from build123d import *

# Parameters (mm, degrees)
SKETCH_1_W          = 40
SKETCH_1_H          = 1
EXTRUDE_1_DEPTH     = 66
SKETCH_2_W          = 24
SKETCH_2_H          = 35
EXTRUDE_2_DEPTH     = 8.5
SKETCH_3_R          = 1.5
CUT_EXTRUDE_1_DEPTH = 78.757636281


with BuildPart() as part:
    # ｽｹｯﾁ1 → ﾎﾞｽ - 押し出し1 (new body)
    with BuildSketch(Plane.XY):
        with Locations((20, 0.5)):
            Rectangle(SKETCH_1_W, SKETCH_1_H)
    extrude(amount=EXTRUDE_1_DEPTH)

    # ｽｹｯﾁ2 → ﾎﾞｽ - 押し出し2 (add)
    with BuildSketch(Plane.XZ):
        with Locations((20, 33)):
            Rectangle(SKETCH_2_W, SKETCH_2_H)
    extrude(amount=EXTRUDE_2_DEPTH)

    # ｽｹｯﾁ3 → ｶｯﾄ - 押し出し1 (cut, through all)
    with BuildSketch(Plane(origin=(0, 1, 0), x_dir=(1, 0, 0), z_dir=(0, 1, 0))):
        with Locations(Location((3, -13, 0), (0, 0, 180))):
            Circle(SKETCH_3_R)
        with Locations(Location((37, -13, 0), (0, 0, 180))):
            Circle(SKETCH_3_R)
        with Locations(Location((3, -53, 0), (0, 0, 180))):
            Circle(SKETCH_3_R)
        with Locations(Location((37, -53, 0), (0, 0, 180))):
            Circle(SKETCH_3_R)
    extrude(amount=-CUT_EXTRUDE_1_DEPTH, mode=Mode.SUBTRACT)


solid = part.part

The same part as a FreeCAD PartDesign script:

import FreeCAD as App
import Part
import Sketcher

doc = App.newDocument("Part")
body = doc.addObject("PartDesign::Body", "Body")

sketch1 = body.newObject("Sketcher::SketchObject", "Sketch")
sketch1.AttachmentSupport = (doc.getObject("XY_Plane"), [""])
sketch1.MapMode = "FlatFace"
sketch1.addGeometry(Part.LineSegment(App.Vector(0, 1, 0), App.Vector(0, 0, 0)), False)
sketch1.addGeometry(Part.LineSegment(App.Vector(0, 0, 0), App.Vector(40, 0, 0)), False)
sketch1.addGeometry(Part.LineSegment(App.Vector(40, 0, 0), App.Vector(40, 1, 0)), False)
sketch1.addGeometry(Part.LineSegment(App.Vector(40, 1, 0), App.Vector(0, 1, 0)), False)
sketch1.addConstraint(Sketcher.Constraint("Coincident", 0, 2, 1, 1))
sketch1.addConstraint(Sketcher.Constraint("Coincident", 1, 2, 2, 1))
sketch1.addConstraint(Sketcher.Constraint("Coincident", 2, 2, 3, 1))
sketch1.addConstraint(Sketcher.Constraint("Coincident", 3, 2, 0, 1))
sketch1.addConstraint(Sketcher.Constraint("Vertical", 0))
sketch1.addConstraint(Sketcher.Constraint("Horizontal", 1))
sketch1.addConstraint(Sketcher.Constraint("Vertical", 2))
sketch1.addConstraint(Sketcher.Constraint("Horizontal", 3))
sketch1.addConstraint(Sketcher.Constraint("Coincident", 0, 2, -1, 1))
sketch1.addConstraint(Sketcher.Constraint("DistanceX", 1, 1, 1, 2, 40.0))
sketch1.addConstraint(Sketcher.Constraint("DistanceY", 0, 2, 0, 1, 1.0))
pad1 = body.newObject("PartDesign::Pad", "Pad")
pad1.Profile = sketch1
pad1.Length = 66

sketch2 = body.newObject("Sketcher::SketchObject", "Sketch001")
sketch2.AttachmentSupport = (doc.getObject("XZ_Plane"), [""])
sketch2.MapMode = "FlatFace"
sketch2.addGeometry(Part.LineSegment(App.Vector(8, 50, 0), App.Vector(8, 16, 0)), False)
sketch2.addGeometry(Part.LineSegment(App.Vector(8, 16, 0), App.Vector(32, 16, 0)), False)
sketch2.addGeometry(Part.LineSegment(App.Vector(32, 16, 0), App.Vector(32, 50, 0)), False)
sketch2.addGeometry(Part.LineSegment(App.Vector(32, 50, 0), App.Vector(8, 50, 0)), False)
sketch2.addConstraint(Sketcher.Constraint("Coincident", 0, 2, 1, 1))
sketch2.addConstraint(Sketcher.Constraint("Coincident", 1, 2, 2, 1))
sketch2.addConstraint(Sketcher.Constraint("Coincident", 2, 2, 3, 1))
sketch2.addConstraint(Sketcher.Constraint("Coincident", 3, 2, 0, 1))
sketch2.addConstraint(Sketcher.Constraint("Vertical", 0))
sketch2.addConstraint(Sketcher.Constraint("Horizontal", 1))
sketch2.addConstraint(Sketcher.Constraint("Vertical", 2))
sketch2.addConstraint(Sketcher.Constraint("Horizontal", 3))
sketch2.addConstraint(Sketcher.Constraint("DistanceX", 1, 1, 1, 2, 24.0))
sketch2.addConstraint(Sketcher.Constraint("DistanceY", 0, 2, 0, 1, 35.0))
sketch2.addConstraint(Sketcher.Constraint("DistanceX", -1, 1, 0, 2, 8.0))
sketch2.addConstraint(Sketcher.Constraint("DistanceY", -1, 1, 0, 2, 15.5))
pad2 = body.newObject("PartDesign::Pad", "Pad001")
pad2.Profile = sketch2
pad2.Length = 8.5

sketch3 = body.newObject("Sketcher::SketchObject", "Sketch002")
sketch3.AttachmentSupport = (doc.getObject("XZ_Plane"), [""])
sketch3.MapMode = "FlatFace"
sketch3.AttachmentOffset = App.Placement(App.Vector(0, 0, -1), App.Rotation())
sketch3.addGeometry(Part.Circle(App.Vector(3, 13, 0), App.Vector(0, 0, 1), 1.5), False)
sketch3.addGeometry(Part.Circle(App.Vector(37, 13, 0), App.Vector(0, 0, 1), 1.5), False)
sketch3.addGeometry(Part.Circle(App.Vector(3, 53, 0), App.Vector(0, 0, 1), 1.5), False)
sketch3.addGeometry(Part.Circle(App.Vector(37, 53, 0), App.Vector(0, 0, 1), 1.5), False)
sketch3.addConstraint(Sketcher.Constraint("Equal", 0, 1))
sketch3.addConstraint(Sketcher.Constraint("Equal", 1, 2))
sketch3.addConstraint(Sketcher.Constraint("Equal", 2, 3))
sketch3.addConstraint(Sketcher.Constraint("Horizontal", 0, 3, 1, 3))
sketch3.addConstraint(Sketcher.Constraint("Horizontal", 2, 3, 3, 3))
sketch3.addConstraint(Sketcher.Constraint("Vertical", 0, 3, 2, 3))
sketch3.addConstraint(Sketcher.Constraint("Vertical", 1, 3, 3, 3))
sketch3.addConstraint(Sketcher.Constraint("Diameter", 0, 3.0))
sketch3.addConstraint(Sketcher.Constraint("DistanceX", -1, 1, 0, 3, 3.0))
sketch3.addConstraint(Sketcher.Constraint("DistanceY", -1, 1, 0, 3, 13.0))
sketch3.addConstraint(Sketcher.Constraint("DistanceX", -1, 1, 1, 3, 37.0))
sketch3.addConstraint(Sketcher.Constraint("DistanceY", -1, 1, 2, 3, 53.0))
pocket1 = body.newObject("PartDesign::Pocket", "Pocket")
pocket1.Profile = sketch3
pocket1.Type = "ThroughAll"
pocket1.Reversed = True

doc.recompute()
